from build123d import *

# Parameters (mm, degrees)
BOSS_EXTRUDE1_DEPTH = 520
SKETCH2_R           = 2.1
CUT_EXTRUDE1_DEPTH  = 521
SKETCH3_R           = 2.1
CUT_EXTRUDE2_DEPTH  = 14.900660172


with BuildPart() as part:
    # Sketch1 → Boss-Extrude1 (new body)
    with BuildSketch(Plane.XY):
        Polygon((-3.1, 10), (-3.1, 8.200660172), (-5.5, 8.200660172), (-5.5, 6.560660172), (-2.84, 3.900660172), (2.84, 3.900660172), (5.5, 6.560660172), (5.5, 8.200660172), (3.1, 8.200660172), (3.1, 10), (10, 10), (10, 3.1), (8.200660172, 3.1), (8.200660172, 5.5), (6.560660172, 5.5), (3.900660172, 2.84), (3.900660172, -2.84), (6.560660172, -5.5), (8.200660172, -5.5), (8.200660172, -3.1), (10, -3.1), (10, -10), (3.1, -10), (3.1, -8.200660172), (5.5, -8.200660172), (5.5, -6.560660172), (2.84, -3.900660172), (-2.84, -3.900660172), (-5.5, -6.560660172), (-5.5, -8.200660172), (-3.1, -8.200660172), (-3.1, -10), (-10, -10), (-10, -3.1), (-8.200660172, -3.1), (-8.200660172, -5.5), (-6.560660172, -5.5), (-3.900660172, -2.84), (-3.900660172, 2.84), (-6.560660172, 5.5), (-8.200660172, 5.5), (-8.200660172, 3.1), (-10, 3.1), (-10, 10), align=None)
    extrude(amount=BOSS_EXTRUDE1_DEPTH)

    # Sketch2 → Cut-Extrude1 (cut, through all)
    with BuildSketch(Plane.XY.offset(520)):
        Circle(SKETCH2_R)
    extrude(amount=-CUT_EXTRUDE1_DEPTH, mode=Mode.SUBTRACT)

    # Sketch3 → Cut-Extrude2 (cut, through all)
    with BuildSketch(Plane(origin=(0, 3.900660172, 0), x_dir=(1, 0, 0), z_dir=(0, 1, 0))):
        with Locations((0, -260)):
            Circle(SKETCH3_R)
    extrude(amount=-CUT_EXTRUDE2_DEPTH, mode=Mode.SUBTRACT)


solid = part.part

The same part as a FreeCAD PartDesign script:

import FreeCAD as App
import Part
import Sketcher

V = App.Vector

doc = App.newDocument("Part")
body = doc.addObject("PartDesign::Body", "Body")

# Sketch on XY plane
sketch1 = body.newObject("Sketcher::SketchObject", "Sketch")
sketch1.AttachmentSupport = (doc.getObject("XY_Plane"), [""])
sketch1.MapMode = "FlatFace"
sketch1.addGeometry([
    Part.LineSegment(V(-3.1, 8.20066, 0), V(-3.1, 10, 0)),  # 0
    Part.LineSegment(V(-3.1, 10, 0), V(-10, 10, 0)),  # 1
    Part.LineSegment(V(-10, 10, 0), V(-10, 3.1, 0)),  # 2
    Part.LineSegment(V(-10, 3.1, 0), V(-8.20066, 3.1, 0)),  # 3
    Part.LineSegment(V(-8.20066, 3.1, 0), V(-8.20066, 5.5, 0)),  # 4
    Part.LineSegment(V(-8.20066, 5.5, 0), V(-6.56066, 5.5, 0)),  # 5
    Part.LineSegment(V(-6.56066, 5.5, 0), V(-3.90066, 2.84, 0)),  # 6
    Part.LineSegment(V(-3.90066, 2.84, 0), V(-3.90066, -2.84, 0)),  # 7
    Part.LineSegment(V(-3.90066, -2.84, 0), V(-6.56066, -5.5, 0)),  # 8
    Part.LineSegment(V(-6.56066, -5.5, 0), V(-8.20066, -5.5, 0)),  # 9
    Part.LineSegment(V(-8.20066, -5.5, 0), V(-8.20066, -3.1, 0)),  # 10
    Part.LineSegment(V(-8.20066, -3.1, 0), V(-10, -3.1, 0)),  # 11
    Part.LineSegment(V(-10, -3.1, 0), V(-10, -10, 0)),  # 12
    Part.LineSegment(V(-10, -10, 0), V(-3.1, -10, 0)),  # 13
    Part.LineSegment(V(-3.1, -10, 0), V(-3.1, -8.20066, 0)),  # 14
    Part.LineSegment(V(-3.1, -8.20066, 0), V(-5.5, -8.20066, 0)),  # 15
    Part.LineSegment(V(-5.5, -8.20066, 0), V(-5.5, -6.56066, 0)),  # 16
    Part.LineSegment(V(-5.5, -6.56066, 0), V(-2.84, -3.90066, 0)),  # 17
    Part.LineSegment(V(-2.84, -3.90066, 0), V(2.84, -3.90066, 0)),  # 18
    Part.LineSegment(V(2.84, -3.90066, 0), V(5.5, -6.56066, 0)),  # 19
    Part.LineSegment(V(5.5, -6.56066, 0), V(5.5, -8.20066, 0)),  # 20
    Part.LineSegment(V(5.5, -8.20066, 0), V(3.1, -8.20066, 0)),  # 21
    Part.LineSegment(V(3.1, -8.20066, 0), V(3.1, -10, 0)),  # 22
    Part.LineSegment(V(3.1, -10, 0), V(10, -10, 0)),  # 23
    Part.LineSegment(V(10, -10, 0), V(10, -3.1, 0)),  # 24
    Part.LineSegment(V(10, -3.1, 0), V(8.20066, -3.1, 0)),  # 25
    Part.LineSegment(V(8.20066, -3.1, 0), V(8.20066, -5.5, 0)),  # 26
    Part.LineSegment(V(8.20066, -5.5, 0), V(6.56066, -5.5, 0)),  # 27
    Part.LineSegment(V(6.56066, -5.5, 0), V(3.90066, -2.84, 0)),  # 28
    Part.LineSegment(V(3.90066, -2.84, 0), V(3.90066, 2.84, 0)),  # 29
    Part.LineSegment(V(3.90066, 2.84, 0), V(6.56066, 5.5, 0)),  # 30
    Part.LineSegment(V(6.56066, 5.5, 0), V(8.20066, 5.5, 0)),  # 31
    Part.LineSegment(V(8.20066, 5.5, 0), V(8.20066, 3.1, 0)),  # 32
    Part.LineSegment(V(8.20066, 3.1, 0), V(10, 3.1, 0)),  # 33
    Part.LineSegment(V(10, 3.1, 0), V(10, 10, 0)),  # 34
    Part.LineSegment(V(10, 10, 0), V(3.1, 10, 0)),  # 35
    Part.LineSegment(V(3.1, 10, 0), V(3.1, 8.20066, 0)),  # 36
    Part.LineSegment(V(3.1, 8.20066, 0), V(5.5, 8.20066, 0)),  # 37
    Part.LineSegment(V(5.5, 8.20066, 0), V(5.5, 6.56066, 0)),  # 38
    Part.LineSegment(V(5.5, 6.56066, 0), V(2.84, 3.90066, 0)),  # 39
    Part.LineSegment(V(2.84, 3.90066, 0), V(-2.84, 3.90066, 0)),  # 40
    Part.LineSegment(V(-2.84, 3.90066, 0), V(-5.5, 6.56066, 0)),  # 41
    Part.LineSegment(V(-5.5, 6.56066, 0), V(-5.5, 8.20066, 0)),  # 42
    Part.LineSegment(V(-5.5, 8.20066, 0), V(-3.1, 8.20066, 0)),  # 43
], False)
sketch1.addConstraint([
    Sketcher.Constraint("Coincident", 0, 2, 1, 1),
    Sketcher.Constraint("Coincident", 1, 2, 2, 1),
    Sketcher.Constraint("Coincident", 2, 2, 3, 1),
    Sketcher.Constraint("Coincident", 3, 2, 4, 1),
    Sketcher.Constraint("Coincident", 4, 2, 5, 1),
    Sketcher.Constraint("Coincident", 5, 2, 6, 1),
    Sketcher.Constraint("Coincident", 6, 2, 7, 1),
    Sketcher.Constraint("Coincident", 7, 2, 8, 1),
    Sketcher.Constraint("Coincident", 8, 2, 9, 1),
    Sketcher.Constraint("Coincident", 9, 2, 10, 1),
    Sketcher.Constraint("Coincident", 10, 2, 11, 1),
    Sketcher.Constraint("Coincident", 11, 2, 12, 1),
    Sketcher.Constraint("Coincident", 12, 2, 13, 1),
    Sketcher.Constraint("Coincident", 13, 2, 14, 1),
    Sketcher.Constraint("Coincident", 14, 2, 15, 1),
    Sketcher.Constraint("Coincident", 15, 2, 16, 1),
    Sketcher.Constraint("Coincident", 16, 2, 17, 1),
    Sketcher.Constraint("Coincident", 17, 2, 18, 1),
    Sketcher.Constraint("Coincident", 18, 2, 19, 1),
    Sketcher.Constraint("Coincident", 19, 2, 20, 1),
    Sketcher.Constraint("Coincident", 20, 2, 21, 1),
    Sketcher.Constraint("Coincident", 21, 2, 22, 1),
    Sketcher.Constraint("Coincident", 22, 2, 23, 1),
    Sketcher.Constraint("Coincident", 23, 2, 24, 1),
    Sketcher.Constraint("Coincident", 24, 2, 25, 1),
    Sketcher.Constraint("Coincident", 25, 2, 26, 1),
    Sketcher.Constraint("Coincident", 26, 2, 27, 1),
    Sketcher.Constraint("Coincident", 27, 2, 28, 1),
    Sketcher.Constraint("Coincident", 28, 2, 29, 1),
    Sketcher.Constraint("Coincident", 29, 2, 30, 1),
    Sketcher.Constraint("Coincident", 30, 2, 31, 1),
    Sketcher.Constraint("Coincident", 31, 2, 32, 1),
    Sketcher.Constraint("Coincident", 32, 2, 33, 1),
    Sketcher.Constraint("Coincident", 33, 2, 34, 1),
    Sketcher.Constraint("Coincident", 34, 2, 35, 1),
    Sketcher.Constraint("Coincident", 35, 2, 36, 1),
    Sketcher.Constraint("Coincident", 36, 2, 37, 1),
    Sketcher.Constraint("Coincident", 37, 2, 38, 1),
    Sketcher.Constraint("Coincident", 38, 2, 39, 1),
    Sketcher.Constraint("Coincident", 39, 2, 40, 1),
    Sketcher.Constraint("Coincident", 40, 2, 41, 1),
    Sketcher.Constraint("Coincident", 41, 2, 42, 1),
    Sketcher.Constraint("Coincident", 42, 2, 43, 1),
    Sketcher.Constraint("Coincident", 43, 2, 0, 1),
    Sketcher.Constraint("Vertical", 0),
    Sketcher.Constraint("Horizontal", 1),
    Sketcher.Constraint("Vertical", 2),
    Sketcher.Constraint("Horizontal", 3),
    Sketcher.Constraint("Vertical", 4),
    Sketcher.Constraint("Horizontal", 5),
    Sketcher.Constraint("Vertical", 7),
    Sketcher.Constraint("Horizontal", 9),
    Sketcher.Constraint("Vertical", 10),
    Sketcher.Constraint("Horizontal", 11),
    Sketcher.Constraint("Vertical", 12),
    Sketcher.Constraint("Horizontal", 13),
    Sketcher.Constraint("Vertical", 14),
    Sketcher.Constraint("Horizontal", 15),
    Sketcher.Constraint("Vertical", 16),
    Sketcher.Constraint("Horizontal", 18),
    Sketcher.Constraint("Vertical", 20),
    Sketcher.Constraint("Horizontal", 21),
    Sketcher.Constraint("Vertical", 22),
    Sketcher.Constraint("Horizontal", 23),
    Sketcher.Constraint("Vertical", 24),
    Sketcher.Constraint("Horizontal", 25),
    Sketcher.Constraint("Vertical", 26),
    Sketcher.Constraint("Horizontal", 27),
    Sketcher.Constraint("Vertical", 29),
    Sketcher.Constraint("Horizontal", 31),
    Sketcher.Constraint("Vertical", 32),
    Sketcher.Constraint("Horizontal", 33),
    Sketcher.Constraint("Vertical", 34),
    Sketcher.Constraint("Horizontal", 35),
    Sketcher.Constraint("Vertical", 36),
    Sketcher.Constraint("Horizontal", 37),
    Sketcher.Constraint("Vertical", 38),
    Sketcher.Constraint("Horizontal", 40),
    Sketcher.Constraint("Vertical", 42),
    Sketcher.Constraint("Horizontal", 43),
    Sketcher.Constraint("Symmetric", 0, 2, 22, 2, -1, 1),
    Sketcher.Constraint("Symmetric", 2, 2, 24, 2, -1, 1),
    Sketcher.Constraint("Symmetric", 4, 2, 26, 2, -1, 1),
    Sketcher.Constraint("Symmetric", 6, 2, 28, 2, -1, 1),
    Sketcher.Constraint("Symmetric", 8, 2, 30, 2, -1, 1),
    Sketcher.Constraint("Symmetric", 10, 2, 32, 2, -1, 1),
    Sketcher.Constraint("Symmetric", 12, 2, 34, 2, -1, 1),
    Sketcher.Constraint("Symmetric", 14, 2, 36, 2, -1, 1),
    Sketcher.Constraint("Symmetric", 16, 2, 38, 2, -1, 1),
    Sketcher.Constraint("Symmetric", 17, 2, 39, 2, -1, 1),
    Sketcher.Constraint("Symmetric", 19, 2, 41, 2, -1, 1),
    Sketcher.Constraint("Symmetric", 16, 2, 19, 2, -2),
    Sketcher.Constraint("Symmetric", 14, 2, 21, 2, -2),
    Sketcher.Constraint("Symmetric", 12, 2, 23, 2, -2),
    Sketcher.Constraint("Symmetric", 10, 2, 25, 2, -2),
    Sketcher.Constraint("Symmetric", 8, 2, 27, 2, -2),
    Sketcher.Constraint("Perpendicular", 6, 8),
    Sketcher.Constraint("Parallel", 8, 17),
    Sketcher.Constraint("Perpendicular", 17, 19),
    Sketcher.Constraint("Parallel", 19, 28),
    Sketcher.Constraint("Perpendicular", 28, 30),
    Sketcher.Constraint("Perpendicular", 39, 41),
    Sketcher.Constraint("Horizontal", 7, 2, 28, 2),
    Sketcher.Constraint("Horizontal", 37, 2, 42, 2),
    Sketcher.Constraint("Equal", 33, 0),
    Sketcher.Constraint("Equal", 35, 2),
    Sketcher.Constraint("Equal", 43, 4),
    Sketcher.Constraint("Equal", 40, 7),
    Sketcher.Constraint("Equal", 31, 16),
    Sketcher.Constraint("Equal", 8, 17),
    Sketcher.Constraint("DistanceX", 1, 2, 1, 1, 6.9),
    Sketcher.Constraint("DistanceX", 15, 2, 15, 1, 2.4),
    Sketcher.Constraint("DistanceY", -1, 1, 0, 2, 10.0),
    Sketcher.Constraint("DistanceX", 5, 1, 5, 2, 1.64),
    Sketcher.Constraint("DistanceX", 18, 1, 18, 2, 5.68),
    Sketcher.Constraint("DistanceX", 3, 1, 3, 2, 1.79934),
])
pad1 = body.newObject("PartDesign::Pad", "Pad")
pad1.Profile = sketch1
pad1.Length = 520

# Sketch on XY plane
sketch2 = body.newObject("Sketcher::SketchObject", "Sketch001")
sketch2.AttachmentSupport = (doc.getObject("XY_Plane"), [""])
sketch2.MapMode = "FlatFace"
sketch2.AttachmentOffset = App.Placement(V(0, 0, 520), App.Rotation())
sketch2.addGeometry(Part.Circle(V(0, 0, 0), V(0, 0, 1), 2.1), False)
sketch2.addConstraint([
    Sketcher.Constraint("Coincident", 0, 3, -1, 1),
    Sketcher.Constraint("Diameter", 0, 4.2),
])
pocket1 = body.newObject("PartDesign::Pocket", "Pocket")
pocket1.Profile = sketch2
pocket1.Type = "ThroughAll"

# Sketch on XZ plane
sketch3 = body.newObject("Sketcher::SketchObject", "Sketch002")
sketch3.AttachmentSupport = (doc.getObject("XZ_Plane"), [""])
sketch3.MapMode = "FlatFace"
sketch3.AttachmentOffset = App.Placement(V(0, 0, -3.90066), App.Rotation())
sketch3.addGeometry(Part.Circle(V(0, 260, 0), V(0, 0, 1), 2.1), False)
sketch3.addConstraint([
    Sketcher.Constraint("PointOnObject", 0, 3, -2),
    Sketcher.Constraint("Diameter", 0, 4.2),
    Sketcher.Constraint("DistanceY", -1, 1, 0, 3, 260.0),
])
pocket2 = body.newObject("PartDesign::Pocket", "Pocket001")
pocket2.Profile = sketch3
pocket2.Type = "ThroughAll"
pocket2.Reversed = True

doc.recompute()
